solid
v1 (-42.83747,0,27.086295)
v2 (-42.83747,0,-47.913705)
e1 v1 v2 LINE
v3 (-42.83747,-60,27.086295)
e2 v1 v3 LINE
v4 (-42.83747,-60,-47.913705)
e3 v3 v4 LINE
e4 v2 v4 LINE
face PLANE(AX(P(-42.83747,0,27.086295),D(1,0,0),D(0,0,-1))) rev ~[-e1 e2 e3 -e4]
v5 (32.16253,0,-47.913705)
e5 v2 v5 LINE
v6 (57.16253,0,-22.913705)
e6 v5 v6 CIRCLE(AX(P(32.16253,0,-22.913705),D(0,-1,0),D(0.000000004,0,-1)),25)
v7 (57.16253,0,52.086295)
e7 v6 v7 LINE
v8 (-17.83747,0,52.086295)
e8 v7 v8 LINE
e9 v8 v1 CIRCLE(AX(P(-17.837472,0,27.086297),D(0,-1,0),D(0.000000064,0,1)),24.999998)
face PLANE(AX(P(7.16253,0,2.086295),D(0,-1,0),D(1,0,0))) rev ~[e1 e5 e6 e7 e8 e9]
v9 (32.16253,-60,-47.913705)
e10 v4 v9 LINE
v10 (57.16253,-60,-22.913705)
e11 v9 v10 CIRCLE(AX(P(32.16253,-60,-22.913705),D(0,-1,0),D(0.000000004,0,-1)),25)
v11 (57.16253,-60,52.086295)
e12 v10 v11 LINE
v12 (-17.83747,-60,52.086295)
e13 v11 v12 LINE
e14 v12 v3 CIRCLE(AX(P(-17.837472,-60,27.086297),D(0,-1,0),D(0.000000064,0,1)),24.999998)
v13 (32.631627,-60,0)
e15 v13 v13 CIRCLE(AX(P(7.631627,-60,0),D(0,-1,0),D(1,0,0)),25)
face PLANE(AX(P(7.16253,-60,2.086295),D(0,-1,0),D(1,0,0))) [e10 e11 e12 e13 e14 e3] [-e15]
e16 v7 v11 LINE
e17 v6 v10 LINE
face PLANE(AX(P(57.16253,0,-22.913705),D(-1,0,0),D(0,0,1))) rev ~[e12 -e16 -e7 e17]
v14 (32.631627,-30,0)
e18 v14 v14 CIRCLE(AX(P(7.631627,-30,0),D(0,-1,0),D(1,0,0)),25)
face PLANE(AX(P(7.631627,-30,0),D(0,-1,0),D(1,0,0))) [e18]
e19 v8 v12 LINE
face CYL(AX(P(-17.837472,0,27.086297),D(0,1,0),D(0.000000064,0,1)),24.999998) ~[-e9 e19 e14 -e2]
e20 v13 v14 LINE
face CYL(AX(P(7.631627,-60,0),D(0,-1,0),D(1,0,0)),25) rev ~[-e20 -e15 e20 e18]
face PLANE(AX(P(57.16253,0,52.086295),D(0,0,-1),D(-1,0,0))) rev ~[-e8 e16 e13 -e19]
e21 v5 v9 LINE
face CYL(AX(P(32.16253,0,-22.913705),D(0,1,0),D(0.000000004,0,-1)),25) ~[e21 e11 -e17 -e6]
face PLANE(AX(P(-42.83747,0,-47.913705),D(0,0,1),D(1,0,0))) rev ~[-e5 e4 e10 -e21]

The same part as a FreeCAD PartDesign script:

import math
import FreeCAD as App
import Part
import Sketcher

V = App.Vector
Q = App.Units.Quantity

doc = App.newDocument("Part")
body = doc.addObject("PartDesign::Body", "Body")

sketch1 = doc.addObject("Sketcher::SketchObject", "Sketch")
body.addObject(sketch1)
sketch1.AttachmentSupport = (doc.XZ_Plane, [""])
sketch1.MapMode = "FlatFace"
sketch1.addGeometry([
    Part.LineSegment(V(57, 52, 0), V(-18, 52, 0)),
    Part.ArcOfCircle(Part.Circle(V(-18, 27, 0), V(0, 0, 1), 25), math.radians(90), math.radians(180)),
    Part.LineSegment(V(-43, 27, 0), V(-43, -48, 0)),
    Part.LineSegment(V(-43, -48, 0), V(32, -48, 0)),
    Part.ArcOfCircle(Part.Circle(V(32, -23, 0), V(0, 0, 1), 25), math.radians(-90), math.radians(0)),
    Part.LineSegment(V(57, -23, 0), V(57, 52, 0)),
], False)
sketch1.addConstraint([
    Sketcher.Constraint("Tangent", 0, 2, 1, 1),
    Sketcher.Constraint("Tangent", 1, 2, 2, 1),
    Sketcher.Constraint("Coincident", 2, 2, 3, 1),
    Sketcher.Constraint("Tangent", 3, 2, 4, 1),
    Sketcher.Constraint("Tangent", 4, 2, 5, 1),
    Sketcher.Constraint("Coincident", 5, 2, 0, 1),
    Sketcher.Constraint("Horizontal", 0),
    Sketcher.Constraint("Vertical", 2),
    Sketcher.Constraint("Horizontal", 3),
    Sketcher.Constraint("Vertical", 5),
    Sketcher.Constraint("Equal", 1, 4),
    Sketcher.Constraint("Equal", 3, 2),
    Sketcher.Constraint("Radius", 1, Q("24.999998 mm")),
    Sketcher.Constraint("DistanceX", 0, 2, 0, 1, Q("75 mm")),
    Sketcher.Constraint("DistanceX", 1, 3, -1, 1, Q("17.837472 mm")),
    Sketcher.Constraint("DistanceY", -1, 1, 1, 3, Q("27.086297 mm")),
])
pad1 = doc.addObject("PartDesign::Pad", "Pad")
body.addObject(pad1)
pad1.Profile = sketch1
pad1.Length = 60

sketch2 = doc.addObject("Sketcher::SketchObject", "Sketch001")
body.addObject(sketch2)
sketch2.AttachmentSupport = (doc.XZ_Plane, [""])
sketch2.MapMode = "FlatFace"
sketch2.AttachmentOffset = App.Placement(V(0, 0, 60), App.Rotation())
sketch2.addGeometry(Part.Circle(V(8, 0, 0), V(0, 0, 1), 25), False)
sketch2.addConstraint([
    Sketcher.Constraint("PointOnObject", 0, 3, -1),
    Sketcher.Constraint("Diameter", 0, Q("50 mm")),
    Sketcher.Constraint("DistanceX", -1, 1, 0, 3, Q("7.631627 mm")),
])
pocket1 = doc.addObject("PartDesign::Pocket", "Pocket")
body.addObject(pocket1)
pocket1.Profile = sketch2
pocket1.Length = 30

doc.recompute()
